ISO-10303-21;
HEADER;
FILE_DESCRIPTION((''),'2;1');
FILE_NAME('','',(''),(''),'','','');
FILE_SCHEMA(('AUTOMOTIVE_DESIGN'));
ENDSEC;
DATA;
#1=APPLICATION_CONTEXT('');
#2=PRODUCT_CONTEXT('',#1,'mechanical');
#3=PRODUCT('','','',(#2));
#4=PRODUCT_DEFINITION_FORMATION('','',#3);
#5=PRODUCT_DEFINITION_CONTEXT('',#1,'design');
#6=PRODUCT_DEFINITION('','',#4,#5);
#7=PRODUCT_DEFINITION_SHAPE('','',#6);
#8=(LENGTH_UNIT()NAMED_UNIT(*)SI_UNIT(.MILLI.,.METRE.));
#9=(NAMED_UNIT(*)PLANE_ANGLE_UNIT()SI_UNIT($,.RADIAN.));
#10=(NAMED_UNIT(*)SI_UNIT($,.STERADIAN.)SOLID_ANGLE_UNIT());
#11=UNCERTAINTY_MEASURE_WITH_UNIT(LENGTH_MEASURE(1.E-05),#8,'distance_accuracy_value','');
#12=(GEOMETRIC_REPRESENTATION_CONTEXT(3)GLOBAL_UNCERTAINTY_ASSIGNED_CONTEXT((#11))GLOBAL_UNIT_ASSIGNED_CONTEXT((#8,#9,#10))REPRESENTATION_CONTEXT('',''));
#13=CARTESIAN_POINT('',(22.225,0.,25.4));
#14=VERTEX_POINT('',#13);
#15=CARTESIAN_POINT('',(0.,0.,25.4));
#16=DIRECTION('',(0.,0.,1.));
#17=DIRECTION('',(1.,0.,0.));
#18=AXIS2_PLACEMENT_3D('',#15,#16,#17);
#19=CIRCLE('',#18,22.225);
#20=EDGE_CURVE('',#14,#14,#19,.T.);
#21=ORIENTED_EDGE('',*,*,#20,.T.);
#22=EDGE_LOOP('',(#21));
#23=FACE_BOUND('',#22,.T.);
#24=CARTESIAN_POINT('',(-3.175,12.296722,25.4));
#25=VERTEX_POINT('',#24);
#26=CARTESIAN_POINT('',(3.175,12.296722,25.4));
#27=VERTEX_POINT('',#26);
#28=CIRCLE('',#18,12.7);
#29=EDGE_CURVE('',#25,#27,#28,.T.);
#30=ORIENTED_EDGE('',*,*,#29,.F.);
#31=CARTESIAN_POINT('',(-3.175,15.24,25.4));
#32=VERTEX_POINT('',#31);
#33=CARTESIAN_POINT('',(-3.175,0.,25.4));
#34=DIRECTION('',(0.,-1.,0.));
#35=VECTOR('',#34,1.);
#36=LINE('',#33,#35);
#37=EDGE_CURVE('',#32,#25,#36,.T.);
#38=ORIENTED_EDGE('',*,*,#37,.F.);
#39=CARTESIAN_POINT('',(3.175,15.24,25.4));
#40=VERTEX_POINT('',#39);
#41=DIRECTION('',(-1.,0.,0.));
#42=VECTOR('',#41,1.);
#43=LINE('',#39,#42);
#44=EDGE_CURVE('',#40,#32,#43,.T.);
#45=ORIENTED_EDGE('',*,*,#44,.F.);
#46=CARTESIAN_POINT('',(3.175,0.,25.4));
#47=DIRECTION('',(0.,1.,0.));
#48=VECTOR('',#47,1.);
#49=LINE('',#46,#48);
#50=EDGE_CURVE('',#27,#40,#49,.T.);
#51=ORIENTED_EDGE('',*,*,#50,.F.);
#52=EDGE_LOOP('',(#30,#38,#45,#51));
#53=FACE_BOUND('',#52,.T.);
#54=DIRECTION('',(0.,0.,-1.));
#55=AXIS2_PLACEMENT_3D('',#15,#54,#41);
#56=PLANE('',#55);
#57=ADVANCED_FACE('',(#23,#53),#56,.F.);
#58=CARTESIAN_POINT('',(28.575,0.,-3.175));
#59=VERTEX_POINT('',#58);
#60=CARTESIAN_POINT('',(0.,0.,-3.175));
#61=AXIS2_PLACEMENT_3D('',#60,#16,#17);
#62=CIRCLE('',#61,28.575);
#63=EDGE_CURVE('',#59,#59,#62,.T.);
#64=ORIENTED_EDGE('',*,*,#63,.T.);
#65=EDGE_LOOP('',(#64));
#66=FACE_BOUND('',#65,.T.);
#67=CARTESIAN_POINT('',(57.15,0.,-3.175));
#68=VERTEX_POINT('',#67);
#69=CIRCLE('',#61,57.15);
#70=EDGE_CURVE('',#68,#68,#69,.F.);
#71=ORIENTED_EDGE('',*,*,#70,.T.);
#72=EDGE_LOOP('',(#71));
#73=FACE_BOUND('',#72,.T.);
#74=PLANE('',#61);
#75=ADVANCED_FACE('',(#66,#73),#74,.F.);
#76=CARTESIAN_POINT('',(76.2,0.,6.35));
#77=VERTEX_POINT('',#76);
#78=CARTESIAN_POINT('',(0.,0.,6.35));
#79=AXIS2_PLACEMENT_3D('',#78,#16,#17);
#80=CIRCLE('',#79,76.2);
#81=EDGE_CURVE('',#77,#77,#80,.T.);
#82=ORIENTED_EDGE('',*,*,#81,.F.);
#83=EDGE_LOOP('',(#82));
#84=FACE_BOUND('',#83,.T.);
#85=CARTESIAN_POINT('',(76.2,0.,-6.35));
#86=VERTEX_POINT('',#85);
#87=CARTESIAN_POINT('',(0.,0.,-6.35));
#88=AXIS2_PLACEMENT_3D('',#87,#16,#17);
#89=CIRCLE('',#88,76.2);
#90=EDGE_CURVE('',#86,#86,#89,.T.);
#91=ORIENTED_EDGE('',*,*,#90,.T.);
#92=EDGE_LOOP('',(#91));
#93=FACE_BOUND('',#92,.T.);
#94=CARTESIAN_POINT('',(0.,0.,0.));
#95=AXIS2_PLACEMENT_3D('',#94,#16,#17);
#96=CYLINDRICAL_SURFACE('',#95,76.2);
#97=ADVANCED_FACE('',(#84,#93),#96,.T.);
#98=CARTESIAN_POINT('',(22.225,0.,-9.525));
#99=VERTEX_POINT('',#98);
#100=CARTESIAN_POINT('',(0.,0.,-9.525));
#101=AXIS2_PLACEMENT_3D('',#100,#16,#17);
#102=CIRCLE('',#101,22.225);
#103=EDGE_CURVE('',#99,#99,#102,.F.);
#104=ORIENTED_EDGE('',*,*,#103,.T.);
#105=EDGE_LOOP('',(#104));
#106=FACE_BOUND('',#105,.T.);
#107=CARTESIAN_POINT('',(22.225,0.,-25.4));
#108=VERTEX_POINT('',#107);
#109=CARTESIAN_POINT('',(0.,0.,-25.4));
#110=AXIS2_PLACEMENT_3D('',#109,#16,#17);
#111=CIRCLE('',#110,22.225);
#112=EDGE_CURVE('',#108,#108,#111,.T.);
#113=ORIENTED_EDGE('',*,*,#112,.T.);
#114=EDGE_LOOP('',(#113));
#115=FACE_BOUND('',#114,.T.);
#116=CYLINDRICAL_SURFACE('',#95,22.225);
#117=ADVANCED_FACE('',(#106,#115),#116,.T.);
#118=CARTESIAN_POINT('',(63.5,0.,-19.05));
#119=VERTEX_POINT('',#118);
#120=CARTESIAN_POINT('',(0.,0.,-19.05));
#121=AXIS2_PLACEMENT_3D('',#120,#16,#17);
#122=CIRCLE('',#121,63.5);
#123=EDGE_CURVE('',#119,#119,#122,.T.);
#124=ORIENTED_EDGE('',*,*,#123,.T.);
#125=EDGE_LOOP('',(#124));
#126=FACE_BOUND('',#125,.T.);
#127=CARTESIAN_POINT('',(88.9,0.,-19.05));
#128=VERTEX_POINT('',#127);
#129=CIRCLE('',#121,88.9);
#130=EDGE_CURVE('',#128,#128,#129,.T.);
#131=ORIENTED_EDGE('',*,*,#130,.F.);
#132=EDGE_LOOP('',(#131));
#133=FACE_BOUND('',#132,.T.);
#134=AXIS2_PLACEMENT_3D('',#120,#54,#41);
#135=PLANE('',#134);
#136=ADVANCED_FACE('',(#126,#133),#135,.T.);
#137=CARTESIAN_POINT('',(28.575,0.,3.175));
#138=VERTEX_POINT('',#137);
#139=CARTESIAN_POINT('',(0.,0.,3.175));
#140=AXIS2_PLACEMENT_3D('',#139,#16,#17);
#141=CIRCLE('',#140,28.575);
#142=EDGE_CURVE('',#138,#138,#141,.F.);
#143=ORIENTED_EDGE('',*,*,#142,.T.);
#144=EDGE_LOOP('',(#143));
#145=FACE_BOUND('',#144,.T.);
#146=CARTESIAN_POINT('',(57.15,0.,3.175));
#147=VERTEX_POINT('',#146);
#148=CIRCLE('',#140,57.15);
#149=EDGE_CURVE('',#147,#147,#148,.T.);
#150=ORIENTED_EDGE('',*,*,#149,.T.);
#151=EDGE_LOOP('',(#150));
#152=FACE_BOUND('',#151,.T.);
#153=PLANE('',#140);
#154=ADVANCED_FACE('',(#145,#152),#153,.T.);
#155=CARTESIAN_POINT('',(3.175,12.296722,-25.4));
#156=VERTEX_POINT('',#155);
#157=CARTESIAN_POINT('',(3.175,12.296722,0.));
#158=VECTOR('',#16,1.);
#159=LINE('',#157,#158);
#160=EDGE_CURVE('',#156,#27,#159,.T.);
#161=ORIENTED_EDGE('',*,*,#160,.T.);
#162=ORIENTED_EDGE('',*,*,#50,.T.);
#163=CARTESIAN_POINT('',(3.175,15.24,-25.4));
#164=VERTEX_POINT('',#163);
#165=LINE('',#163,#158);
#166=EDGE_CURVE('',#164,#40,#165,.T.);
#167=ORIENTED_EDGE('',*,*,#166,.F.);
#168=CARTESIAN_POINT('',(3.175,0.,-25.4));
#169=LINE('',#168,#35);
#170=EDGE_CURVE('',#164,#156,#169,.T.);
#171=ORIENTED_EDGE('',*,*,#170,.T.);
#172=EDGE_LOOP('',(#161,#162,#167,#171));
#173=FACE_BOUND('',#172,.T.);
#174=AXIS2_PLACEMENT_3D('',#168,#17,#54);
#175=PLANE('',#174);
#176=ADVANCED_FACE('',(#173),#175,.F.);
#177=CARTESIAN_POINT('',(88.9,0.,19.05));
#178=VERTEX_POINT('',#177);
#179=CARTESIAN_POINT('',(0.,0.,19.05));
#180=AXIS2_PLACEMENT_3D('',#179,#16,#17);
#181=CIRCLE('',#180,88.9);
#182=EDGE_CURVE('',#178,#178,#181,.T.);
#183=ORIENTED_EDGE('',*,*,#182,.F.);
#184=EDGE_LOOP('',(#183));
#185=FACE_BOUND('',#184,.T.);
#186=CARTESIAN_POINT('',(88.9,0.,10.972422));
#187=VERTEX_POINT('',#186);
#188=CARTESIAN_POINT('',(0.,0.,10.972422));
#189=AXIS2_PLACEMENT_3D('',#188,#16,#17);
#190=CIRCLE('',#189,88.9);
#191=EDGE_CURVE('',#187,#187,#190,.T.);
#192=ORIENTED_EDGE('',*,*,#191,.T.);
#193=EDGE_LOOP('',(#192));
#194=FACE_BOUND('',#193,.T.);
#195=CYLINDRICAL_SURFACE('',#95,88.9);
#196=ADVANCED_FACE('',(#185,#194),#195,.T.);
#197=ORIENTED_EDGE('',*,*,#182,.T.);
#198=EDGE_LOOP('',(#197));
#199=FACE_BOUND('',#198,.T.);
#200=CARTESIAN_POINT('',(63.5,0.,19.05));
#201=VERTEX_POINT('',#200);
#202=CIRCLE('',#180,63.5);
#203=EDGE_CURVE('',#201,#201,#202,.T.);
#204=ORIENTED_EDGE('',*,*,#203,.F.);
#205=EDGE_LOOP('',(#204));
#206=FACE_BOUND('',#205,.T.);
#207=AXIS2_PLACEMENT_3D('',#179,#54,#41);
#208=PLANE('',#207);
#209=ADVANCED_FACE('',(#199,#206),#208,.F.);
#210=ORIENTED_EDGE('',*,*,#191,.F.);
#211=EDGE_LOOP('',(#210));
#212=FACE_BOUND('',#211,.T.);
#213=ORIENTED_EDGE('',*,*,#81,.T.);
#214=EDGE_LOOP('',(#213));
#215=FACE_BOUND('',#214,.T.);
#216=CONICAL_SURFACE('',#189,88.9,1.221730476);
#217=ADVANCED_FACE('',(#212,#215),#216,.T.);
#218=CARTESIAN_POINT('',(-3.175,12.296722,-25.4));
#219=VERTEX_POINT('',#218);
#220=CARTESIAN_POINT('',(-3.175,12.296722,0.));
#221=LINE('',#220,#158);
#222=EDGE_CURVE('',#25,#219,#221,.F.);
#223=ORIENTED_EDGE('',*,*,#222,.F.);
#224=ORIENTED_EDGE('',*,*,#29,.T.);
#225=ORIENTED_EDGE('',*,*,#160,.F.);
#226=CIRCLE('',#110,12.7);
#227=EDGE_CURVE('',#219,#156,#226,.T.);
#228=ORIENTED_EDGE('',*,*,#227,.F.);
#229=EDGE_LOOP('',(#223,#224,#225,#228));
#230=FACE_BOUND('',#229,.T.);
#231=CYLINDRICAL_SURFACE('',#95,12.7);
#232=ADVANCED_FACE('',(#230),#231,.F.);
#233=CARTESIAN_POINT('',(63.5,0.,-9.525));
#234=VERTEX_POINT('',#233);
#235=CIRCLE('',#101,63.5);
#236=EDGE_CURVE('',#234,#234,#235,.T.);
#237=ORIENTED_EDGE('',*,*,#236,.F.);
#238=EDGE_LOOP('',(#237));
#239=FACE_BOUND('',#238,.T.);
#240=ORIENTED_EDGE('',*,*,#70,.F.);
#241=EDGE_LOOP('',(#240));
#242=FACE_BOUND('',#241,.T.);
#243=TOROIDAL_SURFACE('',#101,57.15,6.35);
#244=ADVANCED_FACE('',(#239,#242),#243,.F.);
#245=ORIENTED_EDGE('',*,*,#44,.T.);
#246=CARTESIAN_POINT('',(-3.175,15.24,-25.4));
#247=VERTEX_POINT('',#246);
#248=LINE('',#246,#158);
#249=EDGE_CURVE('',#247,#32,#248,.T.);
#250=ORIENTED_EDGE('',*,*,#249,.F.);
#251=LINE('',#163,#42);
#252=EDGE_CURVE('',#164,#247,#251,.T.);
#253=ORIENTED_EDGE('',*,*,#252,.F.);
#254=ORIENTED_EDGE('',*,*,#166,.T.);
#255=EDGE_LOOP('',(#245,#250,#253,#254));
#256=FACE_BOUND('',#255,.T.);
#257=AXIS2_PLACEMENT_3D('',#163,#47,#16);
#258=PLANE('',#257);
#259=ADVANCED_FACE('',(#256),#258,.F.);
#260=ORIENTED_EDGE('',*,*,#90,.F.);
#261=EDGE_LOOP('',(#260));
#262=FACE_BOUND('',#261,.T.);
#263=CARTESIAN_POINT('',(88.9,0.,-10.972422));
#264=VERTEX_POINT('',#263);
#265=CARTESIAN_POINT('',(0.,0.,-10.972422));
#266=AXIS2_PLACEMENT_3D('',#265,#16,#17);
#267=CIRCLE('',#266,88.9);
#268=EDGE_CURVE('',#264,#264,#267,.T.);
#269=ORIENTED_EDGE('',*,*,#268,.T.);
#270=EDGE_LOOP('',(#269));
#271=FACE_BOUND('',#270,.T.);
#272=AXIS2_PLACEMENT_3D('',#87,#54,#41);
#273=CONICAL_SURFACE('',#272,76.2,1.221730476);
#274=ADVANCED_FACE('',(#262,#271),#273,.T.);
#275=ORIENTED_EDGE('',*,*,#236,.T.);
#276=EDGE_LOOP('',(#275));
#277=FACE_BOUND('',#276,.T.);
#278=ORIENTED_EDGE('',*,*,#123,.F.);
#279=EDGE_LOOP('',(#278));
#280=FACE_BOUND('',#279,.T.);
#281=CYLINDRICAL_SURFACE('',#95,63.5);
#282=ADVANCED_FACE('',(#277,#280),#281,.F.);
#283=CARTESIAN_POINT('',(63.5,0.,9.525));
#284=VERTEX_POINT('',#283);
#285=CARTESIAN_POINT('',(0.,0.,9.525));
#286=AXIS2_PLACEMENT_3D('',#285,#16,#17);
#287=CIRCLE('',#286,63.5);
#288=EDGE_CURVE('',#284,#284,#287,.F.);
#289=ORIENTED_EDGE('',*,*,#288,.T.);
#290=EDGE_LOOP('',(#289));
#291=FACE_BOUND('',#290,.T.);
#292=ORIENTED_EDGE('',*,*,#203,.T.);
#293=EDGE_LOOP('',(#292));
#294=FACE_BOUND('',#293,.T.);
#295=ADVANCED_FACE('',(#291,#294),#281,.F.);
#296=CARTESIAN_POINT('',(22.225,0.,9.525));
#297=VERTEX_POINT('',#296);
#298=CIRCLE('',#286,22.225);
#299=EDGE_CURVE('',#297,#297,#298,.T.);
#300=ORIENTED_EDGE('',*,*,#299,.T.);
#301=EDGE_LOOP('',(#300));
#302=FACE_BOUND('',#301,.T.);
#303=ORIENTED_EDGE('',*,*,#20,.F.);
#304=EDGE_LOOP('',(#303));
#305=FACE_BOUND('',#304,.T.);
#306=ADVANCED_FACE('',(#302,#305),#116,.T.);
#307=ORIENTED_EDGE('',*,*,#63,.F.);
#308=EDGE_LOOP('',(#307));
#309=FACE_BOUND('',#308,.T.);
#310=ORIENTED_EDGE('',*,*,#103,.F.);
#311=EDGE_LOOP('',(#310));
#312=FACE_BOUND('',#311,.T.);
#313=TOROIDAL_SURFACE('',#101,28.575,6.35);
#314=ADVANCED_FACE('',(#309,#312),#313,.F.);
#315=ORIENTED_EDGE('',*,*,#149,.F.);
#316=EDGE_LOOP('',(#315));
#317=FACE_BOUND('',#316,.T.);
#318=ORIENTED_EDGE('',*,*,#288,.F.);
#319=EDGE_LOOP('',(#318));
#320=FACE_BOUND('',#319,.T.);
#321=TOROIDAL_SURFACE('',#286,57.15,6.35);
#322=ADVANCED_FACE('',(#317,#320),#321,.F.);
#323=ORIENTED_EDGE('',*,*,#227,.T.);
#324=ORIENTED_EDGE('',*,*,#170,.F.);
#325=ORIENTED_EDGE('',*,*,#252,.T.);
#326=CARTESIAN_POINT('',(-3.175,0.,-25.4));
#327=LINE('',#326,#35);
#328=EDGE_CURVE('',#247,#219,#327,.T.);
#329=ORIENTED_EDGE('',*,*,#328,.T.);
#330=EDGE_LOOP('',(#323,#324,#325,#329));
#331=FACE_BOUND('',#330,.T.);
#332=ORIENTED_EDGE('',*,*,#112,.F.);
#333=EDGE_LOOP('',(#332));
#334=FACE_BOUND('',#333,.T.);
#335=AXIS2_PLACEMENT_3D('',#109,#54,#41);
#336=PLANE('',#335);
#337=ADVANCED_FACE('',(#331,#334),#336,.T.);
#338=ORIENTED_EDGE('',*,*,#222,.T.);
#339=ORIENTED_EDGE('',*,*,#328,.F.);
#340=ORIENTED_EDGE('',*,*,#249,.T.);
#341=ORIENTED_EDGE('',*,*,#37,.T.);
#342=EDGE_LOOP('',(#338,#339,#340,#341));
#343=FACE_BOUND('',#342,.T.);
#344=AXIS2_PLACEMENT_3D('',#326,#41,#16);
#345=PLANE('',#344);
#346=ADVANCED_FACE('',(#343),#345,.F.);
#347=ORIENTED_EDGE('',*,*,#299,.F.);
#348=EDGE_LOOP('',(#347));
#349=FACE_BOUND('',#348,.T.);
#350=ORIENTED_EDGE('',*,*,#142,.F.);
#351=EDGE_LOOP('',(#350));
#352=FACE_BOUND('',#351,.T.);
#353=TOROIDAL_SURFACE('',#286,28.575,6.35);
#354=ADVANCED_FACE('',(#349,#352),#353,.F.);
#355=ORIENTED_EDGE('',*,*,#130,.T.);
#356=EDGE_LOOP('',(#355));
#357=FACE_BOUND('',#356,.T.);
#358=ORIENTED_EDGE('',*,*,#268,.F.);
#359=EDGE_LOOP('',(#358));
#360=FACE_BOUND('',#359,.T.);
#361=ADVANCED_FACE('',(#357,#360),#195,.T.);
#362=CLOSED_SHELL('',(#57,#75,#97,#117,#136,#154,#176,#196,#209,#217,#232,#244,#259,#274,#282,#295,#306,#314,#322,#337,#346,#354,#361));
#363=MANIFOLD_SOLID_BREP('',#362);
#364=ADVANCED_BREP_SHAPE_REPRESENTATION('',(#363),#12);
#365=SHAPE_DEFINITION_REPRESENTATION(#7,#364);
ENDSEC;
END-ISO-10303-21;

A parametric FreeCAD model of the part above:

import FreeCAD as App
import Part
import Sketcher
Q = App.Units.Quantity


def edges_at(feature, points):
    """Names of the edges that pass closest to the given points."""
    edges = feature.Shape.Edges
    near = lambda p: min(range(len(edges)), key=lambda i: edges[i].distToShape(Part.Vertex(*p))[0])
    return sorted({f"Edge{near(p) + 1}" for p in points})

doc = App.newDocument("Part")
body = doc.addObject("PartDesign::Body", "Body")

# Sketch on YZ plane
sketch1 = body.newObject("Sketcher::SketchObject", "Sketch")
sketch1.AttachmentSupport = (doc.getObject("YZ_Plane"), [""])
sketch1.MapMode = "FlatFace"
sketch1.addGeometry([
    Part.LineSegment(App.Vector(88.9, 19.05, 0), App.Vector(63.5, 19.05, 0)),  # 0
    Part.LineSegment(App.Vector(63.5, 19.05, 0), App.Vector(63.5, 3.175, 0)),  # 1
    Part.LineSegment(App.Vector(63.5, 3.175, 0), App.Vector(22.225, 3.175, 0)),  # 2
    Part.LineSegment(App.Vector(22.225, 3.175, 0), App.Vector(22.225, 25.4, 0)),  # 3
    Part.LineSegment(App.Vector(22.225, 25.4, 0), App.Vector(12.7, 25.4, 0)),  # 4
    Part.LineSegment(App.Vector(12.7, 25.4, 0), App.Vector(12.7, -25.4, 0)),  # 5
    Part.LineSegment(App.Vector(12.7, -25.4, 0), App.Vector(22.225, -25.4, 0)),  # 6
    Part.LineSegment(App.Vector(22.225, -25.4, 0), App.Vector(22.225, -3.175, 0)),  # 7
    Part.LineSegment(App.Vector(22.225, -3.175, 0), App.Vector(63.5, -3.175, 0)),  # 8
    Part.LineSegment(App.Vector(63.5, -3.175, 0), App.Vector(63.5, -19.05, 0)),  # 9
    Part.LineSegment(App.Vector(63.5, -19.05, 0), App.Vector(88.9, -19.05, 0)),  # 10
    Part.LineSegment(App.Vector(88.9, -19.05, 0), App.Vector(88.9, 19.05, 0)),  # 11
], False)
sketch1.addConstraint([
    Sketcher.Constraint("Coincident", 0, 2, 1, 1),
    Sketcher.Constraint("Coincident", 1, 2, 2, 1),
    Sketcher.Constraint("Coincident", 2, 2, 3, 1),
    Sketcher.Constraint("Coincident", 3, 2, 4, 1),
    Sketcher.Constraint("Coincident", 4, 2, 5, 1),
    Sketcher.Constraint("Coincident", 5, 2, 6, 1),
    Sketcher.Constraint("Coincident", 6, 2, 7, 1),
    Sketcher.Constraint("Coincident", 7, 2, 8, 1),
    Sketcher.Constraint("Coincident", 8, 2, 9, 1),
    Sketcher.Constraint("Coincident", 9, 2, 10, 1),
    Sketcher.Constraint("Coincident", 10, 2, 11, 1),
    Sketcher.Constraint("Coincident", 11, 2, 0, 1),
    Sketcher.Constraint("Horizontal", 0),
    Sketcher.Constraint("Vertical", 1),
    Sketcher.Constraint("Horizontal", 2),
    Sketcher.Constraint("Vertical", 3),
    Sketcher.Constraint("Horizontal", 4),
    Sketcher.Constraint("Vertical", 5),
    Sketcher.Constraint("Horizontal", 6),
    Sketcher.Constraint("Vertical", 7),
    Sketcher.Constraint("Horizontal", 8),
    Sketcher.Constraint("Vertical", 9),
    Sketcher.Constraint("Horizontal", 10),
    Sketcher.Constraint("Vertical", 11),
    Sketcher.Constraint("Symmetric", 3, 2, 6, 2, -1),
    Sketcher.Constraint("Symmetric", 1, 2, 8, 2, -1),
    Sketcher.Constraint("Equal", 1, 9),
    Sketcher.Constraint("DistanceX", 0, 2, 0, 1, Q("1 in")),
    Sketcher.Constraint("DistanceY", 5, 2, 5, 1, Q("2 in")),
    Sketcher.Constraint("DistanceY", 11, 1, 11, 2, Q("1.5 in")),
    Sketcher.Constraint("DistanceX", 4, 2, 0, 2, Q("2 in")),
    Sketcher.Constraint("DistanceX", -1, 1, 0, 2, Q("2.5 in")),
    Sketcher.Constraint("DistanceX", 2, 2, 2, 1, Q("1.625 in")),
    Sketcher.Constraint("DistanceY", 1, 2, 1, 1, Q("0.625 in")),
])
revolution = body.newObject("PartDesign::Revolution", "Revolution")
revolution.Profile = sketch1
revolution.ReferenceAxis = (sketch1, ["V_Axis"])
revolution.Angle = 360

# Sketch on YZ plane
sketch2 = body.newObject("Sketcher::SketchObject", "Sketch001")
sketch2.AttachmentSupport = (doc.getObject("YZ_Plane"), [""])
sketch2.MapMode = "FlatFace"
sketch2.addGeometry([
    Part.LineSegment(App.Vector(88.9, -10.972422, 0), App.Vector(88.9, 10.972422, 0)),
    Part.LineSegment(App.Vector(88.9, 10.972422, 0), App.Vector(76.2, 6.35, 0)),
    Part.LineSegment(App.Vector(76.2, 6.35, 0), App.Vector(76.2, -6.35, 0)),
    Part.LineSegment(App.Vector(76.2, -6.35, 0), App.Vector(88.9, -10.972422, 0)),
], False)
sketch2.addConstraint([
    Sketcher.Constraint("Coincident", 0, 2, 1, 1),
    Sketcher.Constraint("Coincident", 1, 2, 2, 1),
    Sketcher.Constraint("Coincident", 2, 2, 3, 1),
    Sketcher.Constraint("Coincident", 3, 2, 0, 1),
    Sketcher.Constraint("Vertical", 0),
    Sketcher.Constraint("Vertical", 2),
    Sketcher.Constraint("Equal", 1, 3),
    Sketcher.Constraint("DistanceY", 2, 2, 2, 1, Q("0.5 in")),
    Sketcher.Constraint("DistanceX", -1, 1, 1, 2, Q("3 in")),
    Sketcher.Constraint("Angle", 1, Q("-160 deg")),
    Sketcher.Constraint("DistanceX", -1, 1, 0, 2, Q("3.5 in")),
    Sketcher.Constraint("DistanceY", -1, 1, 1, 2, Q("0.25 in")),
])
groove = body.newObject("PartDesign::Groove", "Groove")
groove.Profile = sketch2
groove.ReferenceAxis = (sketch2, ["V_Axis"])
groove.Angle = 360
doc.recompute()

fillet = body.newObject("PartDesign::Fillet", "Fillet")
fillet.Base = (groove, edges_at(groove, [
    (0, -63.5, -3.175),
    (0, -22.225, -3.175),
    (0, -22.225, 3.175),
    (0, -63.5, 3.175),
]))
fillet.Radius = Q("0.25 in")

# Sketch on XY plane
sketch3 = body.newObject("Sketcher::SketchObject", "Sketch002")
sketch3.AttachmentSupport = (doc.getObject("XY_Plane"), [""])
sketch3.MapMode = "FlatFace"
sketch3.AttachmentOffset = App.Placement(App.Vector(0, 0, 1 * 25.4), App.Rotation())
sketch3.addGeometry([
    Part.LineSegment(App.Vector(-3.175, 15.24, 0), App.Vector(-3.175, 0, 0)),
    Part.LineSegment(App.Vector(-3.175, 0, 0), App.Vector(3.175, 0, 0)),
    Part.LineSegment(App.Vector(3.175, 0, 0), App.Vector(3.175, 15.24, 0)),
    Part.LineSegment(App.Vector(3.175, 15.24, 0), App.Vector(-3.175, 15.24, 0)),
], False)
sketch3.addConstraint([
    Sketcher.Constraint("Coincident", 0, 2, 1, 1),
    Sketcher.Constraint("Coincident", 1, 2, 2, 1),
    Sketcher.Constraint("Coincident", 2, 2, 3, 1),
    Sketcher.Constraint("Coincident", 3, 2, 0, 1),
    Sketcher.Constraint("Vertical", 0),
    Sketcher.Constraint("Horizontal", 1),
    Sketcher.Constraint("Vertical", 2),
    Sketcher.Constraint("Horizontal", 3),
    Sketcher.Constraint("Symmetric", 0, 2, 1, 2, -1, 1),
    Sketcher.Constraint("DistanceY", 0, 2, 0, 1, Q("0.6 in")),
    Sketcher.Constraint("DistanceX", 1, 1, 1, 2, Q("0.25 in")),
])
pocket1 = body.newObject("PartDesign::Pocket", "Pocket")
pocket1.Profile = sketch3
pocket1.Type = "ThroughAll"

doc.recompute()
